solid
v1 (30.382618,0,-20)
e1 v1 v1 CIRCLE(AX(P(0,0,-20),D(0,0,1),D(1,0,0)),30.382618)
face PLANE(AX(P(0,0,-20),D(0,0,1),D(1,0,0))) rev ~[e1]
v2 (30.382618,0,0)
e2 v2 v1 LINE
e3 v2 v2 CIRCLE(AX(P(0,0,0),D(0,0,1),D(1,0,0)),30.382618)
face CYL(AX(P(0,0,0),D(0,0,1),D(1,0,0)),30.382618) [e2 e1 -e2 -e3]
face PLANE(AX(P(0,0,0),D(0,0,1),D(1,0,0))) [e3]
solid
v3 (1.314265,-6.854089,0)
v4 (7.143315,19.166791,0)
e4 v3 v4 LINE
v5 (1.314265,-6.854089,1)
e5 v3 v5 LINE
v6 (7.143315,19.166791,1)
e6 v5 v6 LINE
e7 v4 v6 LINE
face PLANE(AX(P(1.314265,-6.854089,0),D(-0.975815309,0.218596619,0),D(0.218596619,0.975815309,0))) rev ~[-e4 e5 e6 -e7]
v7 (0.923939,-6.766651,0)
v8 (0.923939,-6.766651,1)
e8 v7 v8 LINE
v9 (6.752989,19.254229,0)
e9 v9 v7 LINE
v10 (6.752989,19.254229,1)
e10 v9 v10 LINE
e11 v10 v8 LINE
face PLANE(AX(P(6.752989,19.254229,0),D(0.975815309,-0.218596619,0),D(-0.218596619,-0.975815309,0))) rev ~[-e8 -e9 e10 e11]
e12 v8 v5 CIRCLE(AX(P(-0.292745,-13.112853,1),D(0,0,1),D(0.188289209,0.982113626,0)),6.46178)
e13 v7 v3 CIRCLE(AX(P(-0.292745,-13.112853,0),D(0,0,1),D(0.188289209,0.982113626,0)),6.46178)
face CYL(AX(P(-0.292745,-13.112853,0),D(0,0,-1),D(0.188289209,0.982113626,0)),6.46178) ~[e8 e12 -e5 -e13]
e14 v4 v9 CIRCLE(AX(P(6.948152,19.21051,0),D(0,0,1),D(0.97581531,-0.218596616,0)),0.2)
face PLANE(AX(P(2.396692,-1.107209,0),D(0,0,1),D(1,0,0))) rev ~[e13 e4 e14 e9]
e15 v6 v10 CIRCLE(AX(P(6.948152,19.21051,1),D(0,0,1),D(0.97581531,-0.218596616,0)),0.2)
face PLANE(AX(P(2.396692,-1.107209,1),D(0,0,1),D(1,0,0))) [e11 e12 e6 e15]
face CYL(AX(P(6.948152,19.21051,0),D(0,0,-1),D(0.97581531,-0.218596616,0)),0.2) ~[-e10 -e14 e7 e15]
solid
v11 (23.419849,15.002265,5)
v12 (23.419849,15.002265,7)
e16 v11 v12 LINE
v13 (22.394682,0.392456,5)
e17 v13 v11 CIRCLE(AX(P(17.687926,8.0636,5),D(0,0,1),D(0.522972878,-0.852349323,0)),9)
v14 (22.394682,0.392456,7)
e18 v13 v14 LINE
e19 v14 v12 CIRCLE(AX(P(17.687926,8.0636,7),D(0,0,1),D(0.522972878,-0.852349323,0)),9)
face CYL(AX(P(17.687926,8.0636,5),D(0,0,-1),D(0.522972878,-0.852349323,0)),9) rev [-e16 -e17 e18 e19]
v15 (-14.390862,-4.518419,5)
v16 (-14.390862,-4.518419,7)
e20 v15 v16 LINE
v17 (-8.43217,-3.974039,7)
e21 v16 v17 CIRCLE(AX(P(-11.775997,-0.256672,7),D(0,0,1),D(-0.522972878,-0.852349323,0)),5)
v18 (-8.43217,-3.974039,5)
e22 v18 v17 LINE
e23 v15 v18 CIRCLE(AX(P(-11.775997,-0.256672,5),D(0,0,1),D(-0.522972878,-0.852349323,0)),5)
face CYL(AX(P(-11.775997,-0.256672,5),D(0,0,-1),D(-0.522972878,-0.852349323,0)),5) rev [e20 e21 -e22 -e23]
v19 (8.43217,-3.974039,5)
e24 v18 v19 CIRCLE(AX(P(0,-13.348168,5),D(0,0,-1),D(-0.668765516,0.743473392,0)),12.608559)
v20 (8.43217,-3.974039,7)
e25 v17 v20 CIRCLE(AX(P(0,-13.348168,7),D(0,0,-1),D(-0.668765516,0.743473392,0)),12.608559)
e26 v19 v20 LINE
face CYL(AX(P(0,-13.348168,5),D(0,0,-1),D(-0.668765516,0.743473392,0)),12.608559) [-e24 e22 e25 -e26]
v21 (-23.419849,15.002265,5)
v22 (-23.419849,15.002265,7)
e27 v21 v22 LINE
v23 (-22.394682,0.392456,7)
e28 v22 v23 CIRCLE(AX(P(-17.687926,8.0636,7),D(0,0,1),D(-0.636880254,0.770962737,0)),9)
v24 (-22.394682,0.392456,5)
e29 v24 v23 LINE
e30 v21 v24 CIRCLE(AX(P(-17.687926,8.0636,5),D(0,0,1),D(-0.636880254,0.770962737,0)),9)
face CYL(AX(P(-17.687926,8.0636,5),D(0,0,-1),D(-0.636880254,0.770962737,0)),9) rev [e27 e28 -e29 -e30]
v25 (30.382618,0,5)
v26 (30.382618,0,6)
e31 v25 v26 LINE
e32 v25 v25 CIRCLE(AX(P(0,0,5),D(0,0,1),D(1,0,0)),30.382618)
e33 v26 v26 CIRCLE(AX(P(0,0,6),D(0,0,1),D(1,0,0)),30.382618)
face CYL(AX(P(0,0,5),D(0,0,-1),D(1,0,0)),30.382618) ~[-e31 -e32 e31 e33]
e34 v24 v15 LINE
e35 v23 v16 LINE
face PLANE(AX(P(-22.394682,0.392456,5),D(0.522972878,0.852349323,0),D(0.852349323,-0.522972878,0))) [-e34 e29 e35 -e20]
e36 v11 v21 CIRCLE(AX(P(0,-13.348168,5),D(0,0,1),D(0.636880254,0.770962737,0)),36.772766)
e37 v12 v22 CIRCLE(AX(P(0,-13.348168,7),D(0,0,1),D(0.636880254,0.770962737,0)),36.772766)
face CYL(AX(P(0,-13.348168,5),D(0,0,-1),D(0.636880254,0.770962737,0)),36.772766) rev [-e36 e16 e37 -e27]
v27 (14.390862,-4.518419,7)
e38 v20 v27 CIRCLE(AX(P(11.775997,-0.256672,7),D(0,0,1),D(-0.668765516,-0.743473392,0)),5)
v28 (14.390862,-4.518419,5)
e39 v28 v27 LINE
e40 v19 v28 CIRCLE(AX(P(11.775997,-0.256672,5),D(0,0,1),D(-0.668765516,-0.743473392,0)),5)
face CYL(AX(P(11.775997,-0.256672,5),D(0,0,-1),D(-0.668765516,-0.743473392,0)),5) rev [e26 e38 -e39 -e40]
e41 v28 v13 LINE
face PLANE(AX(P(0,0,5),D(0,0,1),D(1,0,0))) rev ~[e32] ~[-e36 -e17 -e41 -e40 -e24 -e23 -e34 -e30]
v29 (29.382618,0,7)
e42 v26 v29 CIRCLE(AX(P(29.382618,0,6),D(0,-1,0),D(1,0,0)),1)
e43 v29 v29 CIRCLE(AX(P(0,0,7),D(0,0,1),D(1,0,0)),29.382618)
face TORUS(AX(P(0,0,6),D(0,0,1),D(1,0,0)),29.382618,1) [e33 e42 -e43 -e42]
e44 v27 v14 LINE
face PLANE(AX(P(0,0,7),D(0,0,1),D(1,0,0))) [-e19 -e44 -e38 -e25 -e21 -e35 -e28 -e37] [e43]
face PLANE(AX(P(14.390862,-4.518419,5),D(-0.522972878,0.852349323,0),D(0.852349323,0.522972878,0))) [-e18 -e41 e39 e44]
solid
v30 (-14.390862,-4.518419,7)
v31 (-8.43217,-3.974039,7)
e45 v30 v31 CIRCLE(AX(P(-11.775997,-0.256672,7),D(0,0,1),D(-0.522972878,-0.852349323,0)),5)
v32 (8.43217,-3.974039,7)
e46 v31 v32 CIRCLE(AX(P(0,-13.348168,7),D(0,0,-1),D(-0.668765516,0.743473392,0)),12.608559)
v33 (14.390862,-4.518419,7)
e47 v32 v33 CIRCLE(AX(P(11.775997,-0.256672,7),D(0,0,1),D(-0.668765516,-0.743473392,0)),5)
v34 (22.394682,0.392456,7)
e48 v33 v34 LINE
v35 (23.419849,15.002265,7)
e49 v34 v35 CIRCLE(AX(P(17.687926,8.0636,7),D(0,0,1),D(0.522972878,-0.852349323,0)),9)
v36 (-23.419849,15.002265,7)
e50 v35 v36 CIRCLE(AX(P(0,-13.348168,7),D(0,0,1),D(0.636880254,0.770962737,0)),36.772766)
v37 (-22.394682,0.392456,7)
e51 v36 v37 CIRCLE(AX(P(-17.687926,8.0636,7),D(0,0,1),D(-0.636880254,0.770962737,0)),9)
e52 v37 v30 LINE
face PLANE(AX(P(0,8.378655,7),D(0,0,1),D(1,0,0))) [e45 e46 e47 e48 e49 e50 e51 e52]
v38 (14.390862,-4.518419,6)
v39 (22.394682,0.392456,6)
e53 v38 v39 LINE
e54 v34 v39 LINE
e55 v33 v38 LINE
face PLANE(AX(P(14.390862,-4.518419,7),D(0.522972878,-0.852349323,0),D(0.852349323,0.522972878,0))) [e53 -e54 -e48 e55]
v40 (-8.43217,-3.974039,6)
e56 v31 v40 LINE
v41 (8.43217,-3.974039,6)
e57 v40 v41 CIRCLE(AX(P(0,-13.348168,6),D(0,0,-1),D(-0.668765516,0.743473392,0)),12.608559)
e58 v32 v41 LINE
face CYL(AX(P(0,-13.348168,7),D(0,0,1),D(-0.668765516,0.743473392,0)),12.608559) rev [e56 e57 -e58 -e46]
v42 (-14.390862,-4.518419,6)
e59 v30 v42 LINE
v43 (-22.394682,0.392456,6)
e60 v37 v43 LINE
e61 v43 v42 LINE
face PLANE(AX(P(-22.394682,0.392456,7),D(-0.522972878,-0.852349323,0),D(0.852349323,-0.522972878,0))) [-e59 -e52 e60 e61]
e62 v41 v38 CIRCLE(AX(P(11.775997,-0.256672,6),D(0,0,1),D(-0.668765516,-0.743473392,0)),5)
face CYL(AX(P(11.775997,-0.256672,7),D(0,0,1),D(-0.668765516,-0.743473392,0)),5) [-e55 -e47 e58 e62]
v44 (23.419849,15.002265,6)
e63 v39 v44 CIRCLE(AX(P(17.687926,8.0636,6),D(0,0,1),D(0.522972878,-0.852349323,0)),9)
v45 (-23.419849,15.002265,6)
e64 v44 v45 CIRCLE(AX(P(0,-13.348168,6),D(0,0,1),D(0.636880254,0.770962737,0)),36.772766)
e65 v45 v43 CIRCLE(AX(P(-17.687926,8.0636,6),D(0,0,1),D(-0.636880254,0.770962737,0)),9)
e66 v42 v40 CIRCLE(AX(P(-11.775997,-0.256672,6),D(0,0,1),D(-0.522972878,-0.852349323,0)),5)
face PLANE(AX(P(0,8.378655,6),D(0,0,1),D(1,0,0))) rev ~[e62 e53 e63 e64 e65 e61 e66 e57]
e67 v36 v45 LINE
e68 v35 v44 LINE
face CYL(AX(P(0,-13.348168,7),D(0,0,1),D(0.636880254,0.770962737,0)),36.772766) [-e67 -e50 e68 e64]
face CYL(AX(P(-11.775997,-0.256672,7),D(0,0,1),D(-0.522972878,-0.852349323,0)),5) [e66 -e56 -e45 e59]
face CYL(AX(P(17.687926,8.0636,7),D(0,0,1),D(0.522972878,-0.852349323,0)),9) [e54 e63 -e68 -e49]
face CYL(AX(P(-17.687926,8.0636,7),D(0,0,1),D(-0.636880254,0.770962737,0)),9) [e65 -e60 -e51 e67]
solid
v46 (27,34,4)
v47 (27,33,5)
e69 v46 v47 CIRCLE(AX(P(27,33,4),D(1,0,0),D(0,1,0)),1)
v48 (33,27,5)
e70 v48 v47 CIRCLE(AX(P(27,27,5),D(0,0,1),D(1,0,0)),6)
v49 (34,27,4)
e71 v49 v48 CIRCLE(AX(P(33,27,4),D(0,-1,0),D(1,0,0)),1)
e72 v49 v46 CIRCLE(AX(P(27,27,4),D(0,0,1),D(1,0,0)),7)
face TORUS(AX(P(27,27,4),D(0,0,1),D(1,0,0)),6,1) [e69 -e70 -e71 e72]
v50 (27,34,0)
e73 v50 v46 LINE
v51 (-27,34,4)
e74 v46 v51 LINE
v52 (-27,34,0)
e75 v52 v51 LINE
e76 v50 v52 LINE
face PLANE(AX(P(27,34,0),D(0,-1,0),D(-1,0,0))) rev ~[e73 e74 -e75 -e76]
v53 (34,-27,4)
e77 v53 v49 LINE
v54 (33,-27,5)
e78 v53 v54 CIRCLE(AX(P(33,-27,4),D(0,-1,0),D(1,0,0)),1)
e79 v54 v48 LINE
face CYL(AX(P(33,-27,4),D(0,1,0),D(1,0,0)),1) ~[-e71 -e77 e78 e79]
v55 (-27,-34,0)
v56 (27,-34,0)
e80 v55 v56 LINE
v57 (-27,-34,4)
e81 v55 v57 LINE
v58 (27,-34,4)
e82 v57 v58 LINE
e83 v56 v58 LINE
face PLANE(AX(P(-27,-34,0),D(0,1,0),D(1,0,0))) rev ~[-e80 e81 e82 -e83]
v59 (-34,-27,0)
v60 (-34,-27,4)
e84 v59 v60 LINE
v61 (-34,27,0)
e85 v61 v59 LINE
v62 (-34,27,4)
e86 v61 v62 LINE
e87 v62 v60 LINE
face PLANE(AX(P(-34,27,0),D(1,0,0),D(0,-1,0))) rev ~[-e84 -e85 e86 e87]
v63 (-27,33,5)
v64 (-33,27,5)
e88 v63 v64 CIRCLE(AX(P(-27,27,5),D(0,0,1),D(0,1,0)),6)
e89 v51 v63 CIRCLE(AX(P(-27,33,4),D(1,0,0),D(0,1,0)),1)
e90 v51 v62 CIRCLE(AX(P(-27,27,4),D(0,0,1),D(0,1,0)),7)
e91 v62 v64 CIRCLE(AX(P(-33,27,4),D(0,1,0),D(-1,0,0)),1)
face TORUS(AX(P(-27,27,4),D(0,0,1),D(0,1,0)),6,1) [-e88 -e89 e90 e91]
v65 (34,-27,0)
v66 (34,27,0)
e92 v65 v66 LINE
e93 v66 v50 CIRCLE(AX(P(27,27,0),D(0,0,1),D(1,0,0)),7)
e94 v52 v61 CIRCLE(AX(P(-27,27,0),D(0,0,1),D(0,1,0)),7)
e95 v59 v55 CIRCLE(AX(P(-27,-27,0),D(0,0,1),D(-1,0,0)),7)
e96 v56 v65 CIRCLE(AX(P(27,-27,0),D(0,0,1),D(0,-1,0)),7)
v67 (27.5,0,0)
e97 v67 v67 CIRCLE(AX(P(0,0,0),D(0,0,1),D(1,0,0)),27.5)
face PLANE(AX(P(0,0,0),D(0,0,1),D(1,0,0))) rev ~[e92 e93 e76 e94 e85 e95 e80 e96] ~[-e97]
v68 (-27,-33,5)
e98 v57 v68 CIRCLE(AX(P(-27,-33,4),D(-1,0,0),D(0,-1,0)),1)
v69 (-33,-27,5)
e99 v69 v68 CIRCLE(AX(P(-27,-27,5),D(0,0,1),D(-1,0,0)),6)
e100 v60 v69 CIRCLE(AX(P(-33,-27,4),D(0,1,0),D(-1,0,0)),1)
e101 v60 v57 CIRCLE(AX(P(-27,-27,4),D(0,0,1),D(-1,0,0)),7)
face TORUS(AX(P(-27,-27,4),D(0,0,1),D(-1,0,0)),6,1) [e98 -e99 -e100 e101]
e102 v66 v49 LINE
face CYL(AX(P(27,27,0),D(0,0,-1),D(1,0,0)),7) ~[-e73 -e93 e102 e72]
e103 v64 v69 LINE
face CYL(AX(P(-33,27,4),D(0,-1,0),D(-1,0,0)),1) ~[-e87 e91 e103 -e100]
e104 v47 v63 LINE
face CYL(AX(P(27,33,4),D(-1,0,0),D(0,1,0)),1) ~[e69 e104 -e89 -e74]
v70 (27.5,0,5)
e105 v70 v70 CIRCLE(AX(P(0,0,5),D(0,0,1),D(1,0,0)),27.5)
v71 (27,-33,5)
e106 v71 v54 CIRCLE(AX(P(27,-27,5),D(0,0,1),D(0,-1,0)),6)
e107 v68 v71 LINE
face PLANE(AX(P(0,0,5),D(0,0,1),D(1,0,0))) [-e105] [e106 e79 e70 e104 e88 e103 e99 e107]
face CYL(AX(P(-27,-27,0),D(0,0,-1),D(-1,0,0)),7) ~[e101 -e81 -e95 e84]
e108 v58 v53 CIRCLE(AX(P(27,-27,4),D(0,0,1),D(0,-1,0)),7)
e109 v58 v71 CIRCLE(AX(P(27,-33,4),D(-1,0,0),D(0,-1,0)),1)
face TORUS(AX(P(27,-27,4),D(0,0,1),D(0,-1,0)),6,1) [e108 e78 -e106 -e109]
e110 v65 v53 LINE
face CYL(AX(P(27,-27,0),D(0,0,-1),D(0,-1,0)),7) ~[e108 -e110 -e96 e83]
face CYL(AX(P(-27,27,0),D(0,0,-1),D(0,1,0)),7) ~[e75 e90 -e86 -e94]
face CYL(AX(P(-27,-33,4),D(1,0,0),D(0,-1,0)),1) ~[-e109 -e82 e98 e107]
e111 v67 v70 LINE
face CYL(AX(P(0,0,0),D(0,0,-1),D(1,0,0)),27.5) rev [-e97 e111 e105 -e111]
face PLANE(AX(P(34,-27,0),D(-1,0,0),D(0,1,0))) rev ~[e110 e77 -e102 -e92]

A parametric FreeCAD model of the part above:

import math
import FreeCAD as App
import Part
import Sketcher
from FreeCAD import Vector


def edges_at(feature, points):
    """Names of the edges that pass closest to the given points."""
    edges = feature.Shape.Edges
    near = lambda p: min(range(len(edges)), key=lambda i: edges[i].distToShape(Part.Vertex(*p))[0])
    return sorted({f"Edge{near(p) + 1}" for p in points})

doc = App.newDocument("Part")
body = doc.addObject("PartDesign::Body", "Body")

sketch1 = doc.addObject("Sketcher::SketchObject", "Sketch")
body.addObject(sketch1)
sketch1.AttachmentSupport = (doc.XY_Plane, [""])
sketch1.MapMode = "FlatFace"
sketch1.addGeometry(Part.Circle(Vector(0, 0, 0), Vector(0, 0, 1), 30.382618), False)
sketch1.addConstraint([
    Sketcher.Constraint("Coincident", 0, 3, -1, 1),
    Sketcher.Constraint("Diameter", 0, 60.765236),
])
pad1 = doc.addObject("PartDesign::Pad", "Pad")
body.addObject(pad1)
pad1.Profile = sketch1
pad1.Length = 20
pad1.Reversed = True
body2 = doc.addObject("PartDesign::Body", "Body001")

sketch2 = doc.addObject("Sketcher::SketchObject", "Sketch001")
body2.addObject(sketch2)
sketch2.AttachmentSupport = (doc.getObject("XY_Plane001"), [""])
sketch2.MapMode = "FlatFace"
sketch2.addGeometry([
    Part.LineSegment(Vector(-27, -34, 0), Vector(27, -34, 0)),
    Part.ArcOfCircle(Part.Circle(Vector(27, -27, 0), Vector(0, 0, 1), 7), math.radians(-90), math.radians(0)),
    Part.LineSegment(Vector(34, -27, 0), Vector(34, 27, 0)),
    Part.ArcOfCircle(Part.Circle(Vector(27, 27, 0), Vector(0, 0, 1), 7), math.radians(0), math.radians(90)),
    Part.LineSegment(Vector(27, 34, 0), Vector(-27, 34, 0)),
    Part.ArcOfCircle(Part.Circle(Vector(-27, 27, 0), Vector(0, 0, 1), 7), math.radians(90), math.radians(180)),
    Part.LineSegment(Vector(-34, 27, 0), Vector(-34, -27, 0)),
    Part.ArcOfCircle(Part.Circle(Vector(-27, -27, 0), Vector(0, 0, 1), 7), math.radians(-180), math.radians(-90)),
    Part.Circle(Vector(0, 0, 0), Vector(0, 0, 1), 27.5),
], False)
sketch2.addConstraint([
    Sketcher.Constraint("Tangent", 0, 2, 1, 1),
    Sketcher.Constraint("Tangent", 1, 2, 2, 1),
    Sketcher.Constraint("Tangent", 2, 2, 3, 1),
    Sketcher.Constraint("Tangent", 3, 2, 4, 1),
    Sketcher.Constraint("Tangent", 4, 2, 5, 1),
    Sketcher.Constraint("Tangent", 5, 2, 6, 1),
    Sketcher.Constraint("Tangent", 6, 2, 7, 1),
    Sketcher.Constraint("Tangent", 7, 2, 0, 1),
    Sketcher.Constraint("Horizontal", 0),
    Sketcher.Constraint("Vertical", 2),
    Sketcher.Constraint("Horizontal", 4),
    Sketcher.Constraint("Vertical", 6),
    Sketcher.Constraint("Coincident", 8, 3, -1, 1),
    Sketcher.Constraint("Equal", 1, 3),
    Sketcher.Constraint("Equal", 3, 5),
    Sketcher.Constraint("Equal", 5, 7),
    Sketcher.Constraint("Symmetric", 1, 3, 5, 3, -1, 1),
    Sketcher.Constraint("Equal", 4, 2),
    Sketcher.Constraint("Diameter", 8, 55.0),
    Sketcher.Constraint("Radius", 1, 7.0),
    Sketcher.Constraint("DistanceX", 0, 1, 0, 2, 54.0),
])
pad2 = doc.addObject("PartDesign::Pad", "Pad001")
body2.addObject(pad2)
pad2.Profile = sketch2
pad2.Length = 5
doc.recompute()

fillet = doc.addObject("PartDesign::Fillet", "Fillet")
body2.addObject(fillet)
fillet.Base = (pad2, edges_at(pad2, [
    (-31.95, -31.95, 5),
    (0, -34, 5),
    (31.95, -31.95, 5),
    (34, 0, 5),
    (31.95, 31.95, 5),
    (0, 34, 5),
    (-31.95, 31.95, 5),
    (-34, 0, 5),
]))
fillet.Radius = 1
body3 = doc.addObject("PartDesign::Body", "Body002")

sketch3 = doc.addObject("Sketcher::SketchObject", "Sketch002")
body3.addObject(sketch3)
sketch3.AttachmentSupport = (doc.getObject("XY_Plane002"), [""])
sketch3.MapMode = "FlatFace"
sketch3.AttachmentOffset = App.Placement(Vector(0, 0, 5), App.Rotation())
sketch3.addGeometry([
    Part.Circle(Vector(0, 0, 0), Vector(0, 0, 1), 30.382618),
    Part.LineSegment(Vector(22.394682, 0.392456, 0), Vector(14.390862, -4.518419, 0)),
    Part.ArcOfCircle(Part.Circle(Vector(11.775997, -0.256672, 0), Vector(0, 0, 1), 5), math.radians(-131.971858), math.radians(-58.468122)),
    Part.ArcOfCircle(Part.Circle(Vector(0, -13.348168, 0), Vector(0, 0, 1), 12.608559), math.radians(48.028142), math.radians(131.971858)),
    Part.ArcOfCircle(Part.Circle(Vector(-11.775997, -0.256672, 0), Vector(0, 0, 1), 5), math.radians(-121.531878), math.radians(-48.028142)),
    Part.LineSegment(Vector(-14.390862, -4.518419, 0), Vector(-22.394682, 0.392456, 0)),
    Part.ArcOfCircle(Part.Circle(Vector(-17.687926, 8.0636, 0), Vector(0, 0, 1), 9), math.radians(129.559579), math.radians(238.468122)),
    Part.ArcOfCircle(Part.Circle(Vector(0, -13.348168, 0), Vector(0, 0, 1), 36.772766), math.radians(50.440421), math.radians(129.559579)),
    Part.ArcOfCircle(Part.Circle(Vector(17.687926, 8.0636, 0), Vector(0, 0, 1), 9), math.radians(-58.468122), math.radians(50.440421)),
], False)
sketch3.addConstraint([
    Sketcher.Constraint("Tangent", 1, 2, 2, 2),
    Sketcher.Constraint("Tangent", 2, 1, 3, 1),
    Sketcher.Constraint("Tangent", 3, 2, 4, 2),
    Sketcher.Constraint("Tangent", 4, 1, 5, 1),
    Sketcher.Constraint("Tangent", 5, 2, 6, 2),
    Sketcher.Constraint("Tangent", 6, 1, 7, 2),
    Sketcher.Constraint("Tangent", 7, 1, 8, 2),
    Sketcher.Constraint("Tangent", 8, 1, 1, 1),
    Sketcher.Constraint("Coincident", 0, 3, -1, 1),
    Sketcher.Constraint("Coincident", 7, 3, 3, 3),
    Sketcher.Constraint("Equal", 2, 4),
    Sketcher.Constraint("Equal", 6, 8),
    Sketcher.Constraint("Symmetric", 2, 3, 4, 3, -2),
    Sketcher.Constraint("Horizontal", 6, 3, 8, 3),
    Sketcher.Constraint("Radius", 2, 5.0),
    Sketcher.Constraint("Radius", 6, 9.0),
    Sketcher.Constraint("Radius", 3, 12.608559),
    Sketcher.Constraint("Diameter", 0, 60.765236),
    Sketcher.Constraint("Radius", 7, 36.772766),
    Sketcher.Constraint("DistanceY", -1, 1, 6, 3, 8.0636),
    Sketcher.Constraint("DistanceX", -1, 1, 1, 2, 14.390862),
    Sketcher.Constraint("DistanceY", 1, 2, -1, 1, 4.518419),
])
pad3 = doc.addObject("PartDesign::Pad", "Pad002")
body3.addObject(pad3)
pad3.Profile = sketch3
pad3.Length = 2
doc.recompute()

fillet2 = doc.addObject("PartDesign::Fillet", "Fillet001")
body3.addObject(fillet2)
fillet2.Base = (pad3, edges_at(pad3, [(-30.383, 0, 7)]))
fillet2.Radius = 1
body4 = doc.addObject("PartDesign::Body", "Body003")

sketch4 = doc.addObject("Sketcher::SketchObject", "Sketch003")
body4.addObject(sketch4)
sketch4.AttachmentSupport = (doc.getObject("XY_Plane003"), [""])
sketch4.MapMode = "FlatFace"
sketch4.addGeometry([
    Part.LineSegment(Vector(1.314265, -6.854089, 0), Vector(7.143315, 19.166791, 0)),
    Part.ArcOfCircle(Part.Circle(Vector(6.948152, 19.21051, 0), Vector(0, 0, 1), 0.2), math.radians(-12.626619), math.radians(167.373381)),
    Part.LineSegment(Vector(6.752989, 19.254229, 0), Vector(0.923939, -6.766651, 0)),
    Part.ArcOfCircle(Part.Circle(Vector(-0.292745, -13.112853, 0), Vector(0, 0, 1), 6.46178), math.radians(79.147039), math.radians(435.599723)),
], False)
sketch4.addConstraint([
    Sketcher.Constraint("Coincident", 0, 2, 1, 1),
    Sketcher.Constraint("Coincident", 1, 2, 2, 1),
    Sketcher.Constraint("Coincident", 2, 2, 3, 1),
    Sketcher.Constraint("Coincident", 3, 2, 0, 1),
    Sketcher.Constraint("Radius", 1, 0.2),
    Sketcher.Constraint("Radius", 3, 6.46178),
    Sketcher.Constraint("DistanceY", 3, 2, 1, 3, 26.064599),
    Sketcher.Constraint("DistanceY", -1, 1, 1, 3, 19.21051),
    Sketcher.Constraint("DistanceY", -1, 1, 0, 2, 19.166791),
    Sketcher.Constraint("DistanceX", -1, 1, 1, 2, 6.752989),
    Sketcher.Constraint("DistanceY", -1, 1, 1, 2, 19.254229),
    Sketcher.Constraint("DistanceX", -1, 1, 2, 2, 0.923939),
    Sketcher.Constraint("DistanceY", 2, 2, -1, 1, 6.766651),
    Sketcher.Constraint("DistanceX", 3, 3, 0, 2, 7.43606),
])
pad4 = doc.addObject("PartDesign::Pad", "Pad003")
body4.addObject(pad4)
pad4.Profile = sketch4
pad4.Length = 1
body5 = doc.addObject("PartDesign::Body", "Body004")

sketch5 = doc.addObject("Sketcher::SketchObject", "Sketch004")
body5.addObject(sketch5)
sketch5.AttachmentSupport = (doc.getObject("XY_Plane004"), [""])
sketch5.MapMode = "FlatFace"
sketch5.AttachmentOffset = App.Placement(Vector(0, 0, 7), App.Rotation())
sketch5.addGeometry([
    Part.LineSegment(Vector(14.390862, -4.518419, 0), Vector(22.394682, 0.392456, 0)),
    Part.ArcOfCircle(Part.Circle(Vector(17.687926, 8.0636, 0), Vector(0, 0, 1), 9), math.radians(-58.468122), math.radians(50.440421)),
    Part.ArcOfCircle(Part.Circle(Vector(0, -13.348168, 0), Vector(0, 0, 1), 36.772766), math.radians(50.440421), math.radians(129.559579)),
    Part.ArcOfCircle(Part.Circle(Vector(-17.687926, 8.0636, 0), Vector(0, 0, 1), 9), math.radians(129.559579), math.radians(238.468122)),
    Part.LineSegment(Vector(-22.394682, 0.392456, 0), Vector(-14.390862, -4.518419, 0)),
    Part.ArcOfCircle(Part.Circle(Vector(-11.775997, -0.256672, 0), Vector(0, 0, 1), 5), math.radians(-121.531878), math.radians(-48.028142)),
    Part.ArcOfCircle(Part.Circle(Vector(0, -13.348168, 0), Vector(0, 0, 1), 12.608559), math.radians(48.028142), math.radians(131.971858)),
    Part.ArcOfCircle(Part.Circle(Vector(11.775997, -0.256672, 0), Vector(0, 0, 1), 5), math.radians(-131.971858), math.radians(-58.468122)),
], False)
sketch5.addConstraint([
    Sketcher.Constraint("Tangent", 0, 2, 1, 1),
    Sketcher.Constraint("Tangent", 1, 2, 2, 1),
    Sketcher.Constraint("Tangent", 2, 2, 3, 1),
    Sketcher.Constraint("Tangent", 3, 2, 4, 1),
    Sketcher.Constraint("Tangent", 4, 2, 5, 1),
    Sketcher.Constraint("Tangent", 5, 2, 6, 2),
    Sketcher.Constraint("Tangent", 6, 1, 7, 1),
    Sketcher.Constraint("Tangent", 7, 2, 0, 1),
    Sketcher.Constraint("Coincident", 6, 3, 2, 3),
    Sketcher.Constraint("Equal", 1, 3),
    Sketcher.Constraint("Equal", 5, 7),
    Sketcher.Constraint("Symmetric", 1, 3, 3, 3, -2),
    Sketcher.Constraint("Horizontal", 5, 3, 7, 3),
    Sketcher.Constraint("Radius", 1, 9.0),
    Sketcher.Constraint("Radius", 5, 5.0),
    Sketcher.Constraint("Radius", 6, 12.608559),
    Sketcher.Constraint("Radius", 2, 36.772766),
    Sketcher.Constraint("DistanceY", -1, 1, 1, 3, 8.0636),
    Sketcher.Constraint("DistanceX", -1, 1, 1, 2, 23.419849),
    Sketcher.Constraint("DistanceX", 4, 2, -1, 1, 14.390862),
])
pad5 = doc.addObject("PartDesign::Pad", "Pad004")
body5.addObject(pad5)
pad5.Profile = sketch5
pad5.Length = 1
pad5.Reversed = True

doc.recompute()
